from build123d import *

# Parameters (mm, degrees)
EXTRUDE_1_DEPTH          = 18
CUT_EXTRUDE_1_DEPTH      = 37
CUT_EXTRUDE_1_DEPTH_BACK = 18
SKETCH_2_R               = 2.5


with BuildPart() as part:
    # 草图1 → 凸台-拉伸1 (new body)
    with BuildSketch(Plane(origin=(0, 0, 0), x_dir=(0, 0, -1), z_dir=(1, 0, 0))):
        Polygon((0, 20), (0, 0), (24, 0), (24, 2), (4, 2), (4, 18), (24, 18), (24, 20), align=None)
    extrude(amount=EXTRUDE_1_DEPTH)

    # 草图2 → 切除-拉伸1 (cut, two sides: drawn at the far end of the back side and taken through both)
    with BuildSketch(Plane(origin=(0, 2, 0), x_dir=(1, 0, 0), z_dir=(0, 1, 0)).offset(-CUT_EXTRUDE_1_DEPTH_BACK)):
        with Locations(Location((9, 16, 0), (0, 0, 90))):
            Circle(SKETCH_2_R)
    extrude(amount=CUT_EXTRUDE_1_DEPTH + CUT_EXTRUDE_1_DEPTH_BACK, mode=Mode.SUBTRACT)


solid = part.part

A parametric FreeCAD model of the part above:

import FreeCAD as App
import Part
import Sketcher
from FreeCAD import Vector

doc = App.newDocument("Part")
body = doc.addObject("PartDesign::Body", "Body")

# Sketch on YZ plane
sketch1 = body.newObject("Sketcher::SketchObject", "Sketch")
sketch1.AttachmentSupport = (doc.getObject("YZ_Plane"), [""])
sketch1.MapMode = "FlatFace"
sketch1.addGeometry(Part.LineSegment(Vector(20, 0, 0), Vector(0, 0, 0)), False)
sketch1.addGeometry(Part.LineSegment(Vector(0, 0, 0), Vector(0, -24, 0)), False)
sketch1.addGeometry(Part.LineSegment(Vector(0, -24, 0), Vector(2, -24, 0)), False)
sketch1.addGeometry(Part.LineSegment(Vector(2, -24, 0), Vector(2, -4, 0)), False)
sketch1.addGeometry(Part.LineSegment(Vector(2, -4, 0), Vector(18, -4, 0)), False)
sketch1.addGeometry(Part.LineSegment(Vector(18, -4, 0), Vector(18, -24, 0)), False)
sketch1.addGeometry(Part.LineSegment(Vector(18, -24, 0), Vector(20, -24, 0)), False)
sketch1.addGeometry(Part.LineSegment(Vector(20, -24, 0), Vector(20, 0, 0)), False)
sketch1.addConstraint(Sketcher.Constraint("Coincident", 0, 2, 1, 1))
sketch1.addConstraint(Sketcher.Constraint("Coincident", 1, 2, 2, 1))
sketch1.addConstraint(Sketcher.Constraint("Coincident", 2, 2, 3, 1))
sketch1.addConstraint(Sketcher.Constraint("Coincident", 3, 2, 4, 1))
sketch1.addConstraint(Sketcher.Constraint("Coincident", 4, 2, 5, 1))
sketch1.addConstraint(Sketcher.Constraint("Coincident", 5, 2, 6, 1))
sketch1.addConstraint(Sketcher.Constraint("Coincident", 6, 2, 7, 1))
sketch1.addConstraint(Sketcher.Constraint("Coincident", 7, 2, 0, 1))
sketch1.addConstraint(Sketcher.Constraint("Horizontal", 0))
sketch1.addConstraint(Sketcher.Constraint("Vertical", 1))
sketch1.addConstraint(Sketcher.Constraint("Horizontal", 2))
sketch1.addConstraint(Sketcher.Constraint("Vertical", 3))
sketch1.addConstraint(Sketcher.Constraint("Horizontal", 4))
sketch1.addConstraint(Sketcher.Constraint("Vertical", 5))
sketch1.addConstraint(Sketcher.Constraint("Horizontal", 6))
sketch1.addConstraint(Sketcher.Constraint("Vertical", 7))
sketch1.addConstraint(Sketcher.Constraint("Coincident", 0, 2, -1, 1))
sketch1.addConstraint(Sketcher.Constraint("Horizontal", 2, 2, 5, 2))
sketch1.addConstraint(Sketcher.Constraint("Equal", 2, 6))
sketch1.addConstraint(Sketcher.Constraint("Equal", 0, 3))
sketch1.addConstraint(Sketcher.Constraint("DistanceX", 0, 2, 0, 1, 20.0))
sketch1.addConstraint(Sketcher.Constraint("DistanceX", 2, 1, 2, 2, 2.0))
sketch1.addConstraint(Sketcher.Constraint("DistanceY", 1, 2, 1, 1, 24.0))
pad1 = body.newObject("PartDesign::Pad", "Pad")
pad1.Profile = sketch1
pad1.Length = 18

# Sketch on XZ plane
sketch2 = body.newObject("Sketcher::SketchObject", "Sketch001")
sketch2.AttachmentSupport = (doc.getObject("XZ_Plane"), [""])
sketch2.MapMode = "FlatFace"
sketch2.AttachmentOffset = App.Placement(Vector(0, 0, -2), App.Rotation())
sketch2.addGeometry(Part.Circle(Vector(9, -16, 0), Vector(0, 0, 1), 2.5), False)
sketch2.addConstraint(Sketcher.Constraint("Diameter", 0, 5.0))
sketch2.addConstraint(Sketcher.Constraint("DistanceX", -1, 1, 0, 3, 9.0))
sketch2.addConstraint(Sketcher.Constraint("DistanceY", 0, 3, -1, 1, 16.0))
pocket1 = body.newObject("PartDesign::Pocket", "Pocket")
pocket1.Profile = sketch2
pocket1.Type = "ThroughAll"
pocket1.Midplane = True

doc.recompute()
